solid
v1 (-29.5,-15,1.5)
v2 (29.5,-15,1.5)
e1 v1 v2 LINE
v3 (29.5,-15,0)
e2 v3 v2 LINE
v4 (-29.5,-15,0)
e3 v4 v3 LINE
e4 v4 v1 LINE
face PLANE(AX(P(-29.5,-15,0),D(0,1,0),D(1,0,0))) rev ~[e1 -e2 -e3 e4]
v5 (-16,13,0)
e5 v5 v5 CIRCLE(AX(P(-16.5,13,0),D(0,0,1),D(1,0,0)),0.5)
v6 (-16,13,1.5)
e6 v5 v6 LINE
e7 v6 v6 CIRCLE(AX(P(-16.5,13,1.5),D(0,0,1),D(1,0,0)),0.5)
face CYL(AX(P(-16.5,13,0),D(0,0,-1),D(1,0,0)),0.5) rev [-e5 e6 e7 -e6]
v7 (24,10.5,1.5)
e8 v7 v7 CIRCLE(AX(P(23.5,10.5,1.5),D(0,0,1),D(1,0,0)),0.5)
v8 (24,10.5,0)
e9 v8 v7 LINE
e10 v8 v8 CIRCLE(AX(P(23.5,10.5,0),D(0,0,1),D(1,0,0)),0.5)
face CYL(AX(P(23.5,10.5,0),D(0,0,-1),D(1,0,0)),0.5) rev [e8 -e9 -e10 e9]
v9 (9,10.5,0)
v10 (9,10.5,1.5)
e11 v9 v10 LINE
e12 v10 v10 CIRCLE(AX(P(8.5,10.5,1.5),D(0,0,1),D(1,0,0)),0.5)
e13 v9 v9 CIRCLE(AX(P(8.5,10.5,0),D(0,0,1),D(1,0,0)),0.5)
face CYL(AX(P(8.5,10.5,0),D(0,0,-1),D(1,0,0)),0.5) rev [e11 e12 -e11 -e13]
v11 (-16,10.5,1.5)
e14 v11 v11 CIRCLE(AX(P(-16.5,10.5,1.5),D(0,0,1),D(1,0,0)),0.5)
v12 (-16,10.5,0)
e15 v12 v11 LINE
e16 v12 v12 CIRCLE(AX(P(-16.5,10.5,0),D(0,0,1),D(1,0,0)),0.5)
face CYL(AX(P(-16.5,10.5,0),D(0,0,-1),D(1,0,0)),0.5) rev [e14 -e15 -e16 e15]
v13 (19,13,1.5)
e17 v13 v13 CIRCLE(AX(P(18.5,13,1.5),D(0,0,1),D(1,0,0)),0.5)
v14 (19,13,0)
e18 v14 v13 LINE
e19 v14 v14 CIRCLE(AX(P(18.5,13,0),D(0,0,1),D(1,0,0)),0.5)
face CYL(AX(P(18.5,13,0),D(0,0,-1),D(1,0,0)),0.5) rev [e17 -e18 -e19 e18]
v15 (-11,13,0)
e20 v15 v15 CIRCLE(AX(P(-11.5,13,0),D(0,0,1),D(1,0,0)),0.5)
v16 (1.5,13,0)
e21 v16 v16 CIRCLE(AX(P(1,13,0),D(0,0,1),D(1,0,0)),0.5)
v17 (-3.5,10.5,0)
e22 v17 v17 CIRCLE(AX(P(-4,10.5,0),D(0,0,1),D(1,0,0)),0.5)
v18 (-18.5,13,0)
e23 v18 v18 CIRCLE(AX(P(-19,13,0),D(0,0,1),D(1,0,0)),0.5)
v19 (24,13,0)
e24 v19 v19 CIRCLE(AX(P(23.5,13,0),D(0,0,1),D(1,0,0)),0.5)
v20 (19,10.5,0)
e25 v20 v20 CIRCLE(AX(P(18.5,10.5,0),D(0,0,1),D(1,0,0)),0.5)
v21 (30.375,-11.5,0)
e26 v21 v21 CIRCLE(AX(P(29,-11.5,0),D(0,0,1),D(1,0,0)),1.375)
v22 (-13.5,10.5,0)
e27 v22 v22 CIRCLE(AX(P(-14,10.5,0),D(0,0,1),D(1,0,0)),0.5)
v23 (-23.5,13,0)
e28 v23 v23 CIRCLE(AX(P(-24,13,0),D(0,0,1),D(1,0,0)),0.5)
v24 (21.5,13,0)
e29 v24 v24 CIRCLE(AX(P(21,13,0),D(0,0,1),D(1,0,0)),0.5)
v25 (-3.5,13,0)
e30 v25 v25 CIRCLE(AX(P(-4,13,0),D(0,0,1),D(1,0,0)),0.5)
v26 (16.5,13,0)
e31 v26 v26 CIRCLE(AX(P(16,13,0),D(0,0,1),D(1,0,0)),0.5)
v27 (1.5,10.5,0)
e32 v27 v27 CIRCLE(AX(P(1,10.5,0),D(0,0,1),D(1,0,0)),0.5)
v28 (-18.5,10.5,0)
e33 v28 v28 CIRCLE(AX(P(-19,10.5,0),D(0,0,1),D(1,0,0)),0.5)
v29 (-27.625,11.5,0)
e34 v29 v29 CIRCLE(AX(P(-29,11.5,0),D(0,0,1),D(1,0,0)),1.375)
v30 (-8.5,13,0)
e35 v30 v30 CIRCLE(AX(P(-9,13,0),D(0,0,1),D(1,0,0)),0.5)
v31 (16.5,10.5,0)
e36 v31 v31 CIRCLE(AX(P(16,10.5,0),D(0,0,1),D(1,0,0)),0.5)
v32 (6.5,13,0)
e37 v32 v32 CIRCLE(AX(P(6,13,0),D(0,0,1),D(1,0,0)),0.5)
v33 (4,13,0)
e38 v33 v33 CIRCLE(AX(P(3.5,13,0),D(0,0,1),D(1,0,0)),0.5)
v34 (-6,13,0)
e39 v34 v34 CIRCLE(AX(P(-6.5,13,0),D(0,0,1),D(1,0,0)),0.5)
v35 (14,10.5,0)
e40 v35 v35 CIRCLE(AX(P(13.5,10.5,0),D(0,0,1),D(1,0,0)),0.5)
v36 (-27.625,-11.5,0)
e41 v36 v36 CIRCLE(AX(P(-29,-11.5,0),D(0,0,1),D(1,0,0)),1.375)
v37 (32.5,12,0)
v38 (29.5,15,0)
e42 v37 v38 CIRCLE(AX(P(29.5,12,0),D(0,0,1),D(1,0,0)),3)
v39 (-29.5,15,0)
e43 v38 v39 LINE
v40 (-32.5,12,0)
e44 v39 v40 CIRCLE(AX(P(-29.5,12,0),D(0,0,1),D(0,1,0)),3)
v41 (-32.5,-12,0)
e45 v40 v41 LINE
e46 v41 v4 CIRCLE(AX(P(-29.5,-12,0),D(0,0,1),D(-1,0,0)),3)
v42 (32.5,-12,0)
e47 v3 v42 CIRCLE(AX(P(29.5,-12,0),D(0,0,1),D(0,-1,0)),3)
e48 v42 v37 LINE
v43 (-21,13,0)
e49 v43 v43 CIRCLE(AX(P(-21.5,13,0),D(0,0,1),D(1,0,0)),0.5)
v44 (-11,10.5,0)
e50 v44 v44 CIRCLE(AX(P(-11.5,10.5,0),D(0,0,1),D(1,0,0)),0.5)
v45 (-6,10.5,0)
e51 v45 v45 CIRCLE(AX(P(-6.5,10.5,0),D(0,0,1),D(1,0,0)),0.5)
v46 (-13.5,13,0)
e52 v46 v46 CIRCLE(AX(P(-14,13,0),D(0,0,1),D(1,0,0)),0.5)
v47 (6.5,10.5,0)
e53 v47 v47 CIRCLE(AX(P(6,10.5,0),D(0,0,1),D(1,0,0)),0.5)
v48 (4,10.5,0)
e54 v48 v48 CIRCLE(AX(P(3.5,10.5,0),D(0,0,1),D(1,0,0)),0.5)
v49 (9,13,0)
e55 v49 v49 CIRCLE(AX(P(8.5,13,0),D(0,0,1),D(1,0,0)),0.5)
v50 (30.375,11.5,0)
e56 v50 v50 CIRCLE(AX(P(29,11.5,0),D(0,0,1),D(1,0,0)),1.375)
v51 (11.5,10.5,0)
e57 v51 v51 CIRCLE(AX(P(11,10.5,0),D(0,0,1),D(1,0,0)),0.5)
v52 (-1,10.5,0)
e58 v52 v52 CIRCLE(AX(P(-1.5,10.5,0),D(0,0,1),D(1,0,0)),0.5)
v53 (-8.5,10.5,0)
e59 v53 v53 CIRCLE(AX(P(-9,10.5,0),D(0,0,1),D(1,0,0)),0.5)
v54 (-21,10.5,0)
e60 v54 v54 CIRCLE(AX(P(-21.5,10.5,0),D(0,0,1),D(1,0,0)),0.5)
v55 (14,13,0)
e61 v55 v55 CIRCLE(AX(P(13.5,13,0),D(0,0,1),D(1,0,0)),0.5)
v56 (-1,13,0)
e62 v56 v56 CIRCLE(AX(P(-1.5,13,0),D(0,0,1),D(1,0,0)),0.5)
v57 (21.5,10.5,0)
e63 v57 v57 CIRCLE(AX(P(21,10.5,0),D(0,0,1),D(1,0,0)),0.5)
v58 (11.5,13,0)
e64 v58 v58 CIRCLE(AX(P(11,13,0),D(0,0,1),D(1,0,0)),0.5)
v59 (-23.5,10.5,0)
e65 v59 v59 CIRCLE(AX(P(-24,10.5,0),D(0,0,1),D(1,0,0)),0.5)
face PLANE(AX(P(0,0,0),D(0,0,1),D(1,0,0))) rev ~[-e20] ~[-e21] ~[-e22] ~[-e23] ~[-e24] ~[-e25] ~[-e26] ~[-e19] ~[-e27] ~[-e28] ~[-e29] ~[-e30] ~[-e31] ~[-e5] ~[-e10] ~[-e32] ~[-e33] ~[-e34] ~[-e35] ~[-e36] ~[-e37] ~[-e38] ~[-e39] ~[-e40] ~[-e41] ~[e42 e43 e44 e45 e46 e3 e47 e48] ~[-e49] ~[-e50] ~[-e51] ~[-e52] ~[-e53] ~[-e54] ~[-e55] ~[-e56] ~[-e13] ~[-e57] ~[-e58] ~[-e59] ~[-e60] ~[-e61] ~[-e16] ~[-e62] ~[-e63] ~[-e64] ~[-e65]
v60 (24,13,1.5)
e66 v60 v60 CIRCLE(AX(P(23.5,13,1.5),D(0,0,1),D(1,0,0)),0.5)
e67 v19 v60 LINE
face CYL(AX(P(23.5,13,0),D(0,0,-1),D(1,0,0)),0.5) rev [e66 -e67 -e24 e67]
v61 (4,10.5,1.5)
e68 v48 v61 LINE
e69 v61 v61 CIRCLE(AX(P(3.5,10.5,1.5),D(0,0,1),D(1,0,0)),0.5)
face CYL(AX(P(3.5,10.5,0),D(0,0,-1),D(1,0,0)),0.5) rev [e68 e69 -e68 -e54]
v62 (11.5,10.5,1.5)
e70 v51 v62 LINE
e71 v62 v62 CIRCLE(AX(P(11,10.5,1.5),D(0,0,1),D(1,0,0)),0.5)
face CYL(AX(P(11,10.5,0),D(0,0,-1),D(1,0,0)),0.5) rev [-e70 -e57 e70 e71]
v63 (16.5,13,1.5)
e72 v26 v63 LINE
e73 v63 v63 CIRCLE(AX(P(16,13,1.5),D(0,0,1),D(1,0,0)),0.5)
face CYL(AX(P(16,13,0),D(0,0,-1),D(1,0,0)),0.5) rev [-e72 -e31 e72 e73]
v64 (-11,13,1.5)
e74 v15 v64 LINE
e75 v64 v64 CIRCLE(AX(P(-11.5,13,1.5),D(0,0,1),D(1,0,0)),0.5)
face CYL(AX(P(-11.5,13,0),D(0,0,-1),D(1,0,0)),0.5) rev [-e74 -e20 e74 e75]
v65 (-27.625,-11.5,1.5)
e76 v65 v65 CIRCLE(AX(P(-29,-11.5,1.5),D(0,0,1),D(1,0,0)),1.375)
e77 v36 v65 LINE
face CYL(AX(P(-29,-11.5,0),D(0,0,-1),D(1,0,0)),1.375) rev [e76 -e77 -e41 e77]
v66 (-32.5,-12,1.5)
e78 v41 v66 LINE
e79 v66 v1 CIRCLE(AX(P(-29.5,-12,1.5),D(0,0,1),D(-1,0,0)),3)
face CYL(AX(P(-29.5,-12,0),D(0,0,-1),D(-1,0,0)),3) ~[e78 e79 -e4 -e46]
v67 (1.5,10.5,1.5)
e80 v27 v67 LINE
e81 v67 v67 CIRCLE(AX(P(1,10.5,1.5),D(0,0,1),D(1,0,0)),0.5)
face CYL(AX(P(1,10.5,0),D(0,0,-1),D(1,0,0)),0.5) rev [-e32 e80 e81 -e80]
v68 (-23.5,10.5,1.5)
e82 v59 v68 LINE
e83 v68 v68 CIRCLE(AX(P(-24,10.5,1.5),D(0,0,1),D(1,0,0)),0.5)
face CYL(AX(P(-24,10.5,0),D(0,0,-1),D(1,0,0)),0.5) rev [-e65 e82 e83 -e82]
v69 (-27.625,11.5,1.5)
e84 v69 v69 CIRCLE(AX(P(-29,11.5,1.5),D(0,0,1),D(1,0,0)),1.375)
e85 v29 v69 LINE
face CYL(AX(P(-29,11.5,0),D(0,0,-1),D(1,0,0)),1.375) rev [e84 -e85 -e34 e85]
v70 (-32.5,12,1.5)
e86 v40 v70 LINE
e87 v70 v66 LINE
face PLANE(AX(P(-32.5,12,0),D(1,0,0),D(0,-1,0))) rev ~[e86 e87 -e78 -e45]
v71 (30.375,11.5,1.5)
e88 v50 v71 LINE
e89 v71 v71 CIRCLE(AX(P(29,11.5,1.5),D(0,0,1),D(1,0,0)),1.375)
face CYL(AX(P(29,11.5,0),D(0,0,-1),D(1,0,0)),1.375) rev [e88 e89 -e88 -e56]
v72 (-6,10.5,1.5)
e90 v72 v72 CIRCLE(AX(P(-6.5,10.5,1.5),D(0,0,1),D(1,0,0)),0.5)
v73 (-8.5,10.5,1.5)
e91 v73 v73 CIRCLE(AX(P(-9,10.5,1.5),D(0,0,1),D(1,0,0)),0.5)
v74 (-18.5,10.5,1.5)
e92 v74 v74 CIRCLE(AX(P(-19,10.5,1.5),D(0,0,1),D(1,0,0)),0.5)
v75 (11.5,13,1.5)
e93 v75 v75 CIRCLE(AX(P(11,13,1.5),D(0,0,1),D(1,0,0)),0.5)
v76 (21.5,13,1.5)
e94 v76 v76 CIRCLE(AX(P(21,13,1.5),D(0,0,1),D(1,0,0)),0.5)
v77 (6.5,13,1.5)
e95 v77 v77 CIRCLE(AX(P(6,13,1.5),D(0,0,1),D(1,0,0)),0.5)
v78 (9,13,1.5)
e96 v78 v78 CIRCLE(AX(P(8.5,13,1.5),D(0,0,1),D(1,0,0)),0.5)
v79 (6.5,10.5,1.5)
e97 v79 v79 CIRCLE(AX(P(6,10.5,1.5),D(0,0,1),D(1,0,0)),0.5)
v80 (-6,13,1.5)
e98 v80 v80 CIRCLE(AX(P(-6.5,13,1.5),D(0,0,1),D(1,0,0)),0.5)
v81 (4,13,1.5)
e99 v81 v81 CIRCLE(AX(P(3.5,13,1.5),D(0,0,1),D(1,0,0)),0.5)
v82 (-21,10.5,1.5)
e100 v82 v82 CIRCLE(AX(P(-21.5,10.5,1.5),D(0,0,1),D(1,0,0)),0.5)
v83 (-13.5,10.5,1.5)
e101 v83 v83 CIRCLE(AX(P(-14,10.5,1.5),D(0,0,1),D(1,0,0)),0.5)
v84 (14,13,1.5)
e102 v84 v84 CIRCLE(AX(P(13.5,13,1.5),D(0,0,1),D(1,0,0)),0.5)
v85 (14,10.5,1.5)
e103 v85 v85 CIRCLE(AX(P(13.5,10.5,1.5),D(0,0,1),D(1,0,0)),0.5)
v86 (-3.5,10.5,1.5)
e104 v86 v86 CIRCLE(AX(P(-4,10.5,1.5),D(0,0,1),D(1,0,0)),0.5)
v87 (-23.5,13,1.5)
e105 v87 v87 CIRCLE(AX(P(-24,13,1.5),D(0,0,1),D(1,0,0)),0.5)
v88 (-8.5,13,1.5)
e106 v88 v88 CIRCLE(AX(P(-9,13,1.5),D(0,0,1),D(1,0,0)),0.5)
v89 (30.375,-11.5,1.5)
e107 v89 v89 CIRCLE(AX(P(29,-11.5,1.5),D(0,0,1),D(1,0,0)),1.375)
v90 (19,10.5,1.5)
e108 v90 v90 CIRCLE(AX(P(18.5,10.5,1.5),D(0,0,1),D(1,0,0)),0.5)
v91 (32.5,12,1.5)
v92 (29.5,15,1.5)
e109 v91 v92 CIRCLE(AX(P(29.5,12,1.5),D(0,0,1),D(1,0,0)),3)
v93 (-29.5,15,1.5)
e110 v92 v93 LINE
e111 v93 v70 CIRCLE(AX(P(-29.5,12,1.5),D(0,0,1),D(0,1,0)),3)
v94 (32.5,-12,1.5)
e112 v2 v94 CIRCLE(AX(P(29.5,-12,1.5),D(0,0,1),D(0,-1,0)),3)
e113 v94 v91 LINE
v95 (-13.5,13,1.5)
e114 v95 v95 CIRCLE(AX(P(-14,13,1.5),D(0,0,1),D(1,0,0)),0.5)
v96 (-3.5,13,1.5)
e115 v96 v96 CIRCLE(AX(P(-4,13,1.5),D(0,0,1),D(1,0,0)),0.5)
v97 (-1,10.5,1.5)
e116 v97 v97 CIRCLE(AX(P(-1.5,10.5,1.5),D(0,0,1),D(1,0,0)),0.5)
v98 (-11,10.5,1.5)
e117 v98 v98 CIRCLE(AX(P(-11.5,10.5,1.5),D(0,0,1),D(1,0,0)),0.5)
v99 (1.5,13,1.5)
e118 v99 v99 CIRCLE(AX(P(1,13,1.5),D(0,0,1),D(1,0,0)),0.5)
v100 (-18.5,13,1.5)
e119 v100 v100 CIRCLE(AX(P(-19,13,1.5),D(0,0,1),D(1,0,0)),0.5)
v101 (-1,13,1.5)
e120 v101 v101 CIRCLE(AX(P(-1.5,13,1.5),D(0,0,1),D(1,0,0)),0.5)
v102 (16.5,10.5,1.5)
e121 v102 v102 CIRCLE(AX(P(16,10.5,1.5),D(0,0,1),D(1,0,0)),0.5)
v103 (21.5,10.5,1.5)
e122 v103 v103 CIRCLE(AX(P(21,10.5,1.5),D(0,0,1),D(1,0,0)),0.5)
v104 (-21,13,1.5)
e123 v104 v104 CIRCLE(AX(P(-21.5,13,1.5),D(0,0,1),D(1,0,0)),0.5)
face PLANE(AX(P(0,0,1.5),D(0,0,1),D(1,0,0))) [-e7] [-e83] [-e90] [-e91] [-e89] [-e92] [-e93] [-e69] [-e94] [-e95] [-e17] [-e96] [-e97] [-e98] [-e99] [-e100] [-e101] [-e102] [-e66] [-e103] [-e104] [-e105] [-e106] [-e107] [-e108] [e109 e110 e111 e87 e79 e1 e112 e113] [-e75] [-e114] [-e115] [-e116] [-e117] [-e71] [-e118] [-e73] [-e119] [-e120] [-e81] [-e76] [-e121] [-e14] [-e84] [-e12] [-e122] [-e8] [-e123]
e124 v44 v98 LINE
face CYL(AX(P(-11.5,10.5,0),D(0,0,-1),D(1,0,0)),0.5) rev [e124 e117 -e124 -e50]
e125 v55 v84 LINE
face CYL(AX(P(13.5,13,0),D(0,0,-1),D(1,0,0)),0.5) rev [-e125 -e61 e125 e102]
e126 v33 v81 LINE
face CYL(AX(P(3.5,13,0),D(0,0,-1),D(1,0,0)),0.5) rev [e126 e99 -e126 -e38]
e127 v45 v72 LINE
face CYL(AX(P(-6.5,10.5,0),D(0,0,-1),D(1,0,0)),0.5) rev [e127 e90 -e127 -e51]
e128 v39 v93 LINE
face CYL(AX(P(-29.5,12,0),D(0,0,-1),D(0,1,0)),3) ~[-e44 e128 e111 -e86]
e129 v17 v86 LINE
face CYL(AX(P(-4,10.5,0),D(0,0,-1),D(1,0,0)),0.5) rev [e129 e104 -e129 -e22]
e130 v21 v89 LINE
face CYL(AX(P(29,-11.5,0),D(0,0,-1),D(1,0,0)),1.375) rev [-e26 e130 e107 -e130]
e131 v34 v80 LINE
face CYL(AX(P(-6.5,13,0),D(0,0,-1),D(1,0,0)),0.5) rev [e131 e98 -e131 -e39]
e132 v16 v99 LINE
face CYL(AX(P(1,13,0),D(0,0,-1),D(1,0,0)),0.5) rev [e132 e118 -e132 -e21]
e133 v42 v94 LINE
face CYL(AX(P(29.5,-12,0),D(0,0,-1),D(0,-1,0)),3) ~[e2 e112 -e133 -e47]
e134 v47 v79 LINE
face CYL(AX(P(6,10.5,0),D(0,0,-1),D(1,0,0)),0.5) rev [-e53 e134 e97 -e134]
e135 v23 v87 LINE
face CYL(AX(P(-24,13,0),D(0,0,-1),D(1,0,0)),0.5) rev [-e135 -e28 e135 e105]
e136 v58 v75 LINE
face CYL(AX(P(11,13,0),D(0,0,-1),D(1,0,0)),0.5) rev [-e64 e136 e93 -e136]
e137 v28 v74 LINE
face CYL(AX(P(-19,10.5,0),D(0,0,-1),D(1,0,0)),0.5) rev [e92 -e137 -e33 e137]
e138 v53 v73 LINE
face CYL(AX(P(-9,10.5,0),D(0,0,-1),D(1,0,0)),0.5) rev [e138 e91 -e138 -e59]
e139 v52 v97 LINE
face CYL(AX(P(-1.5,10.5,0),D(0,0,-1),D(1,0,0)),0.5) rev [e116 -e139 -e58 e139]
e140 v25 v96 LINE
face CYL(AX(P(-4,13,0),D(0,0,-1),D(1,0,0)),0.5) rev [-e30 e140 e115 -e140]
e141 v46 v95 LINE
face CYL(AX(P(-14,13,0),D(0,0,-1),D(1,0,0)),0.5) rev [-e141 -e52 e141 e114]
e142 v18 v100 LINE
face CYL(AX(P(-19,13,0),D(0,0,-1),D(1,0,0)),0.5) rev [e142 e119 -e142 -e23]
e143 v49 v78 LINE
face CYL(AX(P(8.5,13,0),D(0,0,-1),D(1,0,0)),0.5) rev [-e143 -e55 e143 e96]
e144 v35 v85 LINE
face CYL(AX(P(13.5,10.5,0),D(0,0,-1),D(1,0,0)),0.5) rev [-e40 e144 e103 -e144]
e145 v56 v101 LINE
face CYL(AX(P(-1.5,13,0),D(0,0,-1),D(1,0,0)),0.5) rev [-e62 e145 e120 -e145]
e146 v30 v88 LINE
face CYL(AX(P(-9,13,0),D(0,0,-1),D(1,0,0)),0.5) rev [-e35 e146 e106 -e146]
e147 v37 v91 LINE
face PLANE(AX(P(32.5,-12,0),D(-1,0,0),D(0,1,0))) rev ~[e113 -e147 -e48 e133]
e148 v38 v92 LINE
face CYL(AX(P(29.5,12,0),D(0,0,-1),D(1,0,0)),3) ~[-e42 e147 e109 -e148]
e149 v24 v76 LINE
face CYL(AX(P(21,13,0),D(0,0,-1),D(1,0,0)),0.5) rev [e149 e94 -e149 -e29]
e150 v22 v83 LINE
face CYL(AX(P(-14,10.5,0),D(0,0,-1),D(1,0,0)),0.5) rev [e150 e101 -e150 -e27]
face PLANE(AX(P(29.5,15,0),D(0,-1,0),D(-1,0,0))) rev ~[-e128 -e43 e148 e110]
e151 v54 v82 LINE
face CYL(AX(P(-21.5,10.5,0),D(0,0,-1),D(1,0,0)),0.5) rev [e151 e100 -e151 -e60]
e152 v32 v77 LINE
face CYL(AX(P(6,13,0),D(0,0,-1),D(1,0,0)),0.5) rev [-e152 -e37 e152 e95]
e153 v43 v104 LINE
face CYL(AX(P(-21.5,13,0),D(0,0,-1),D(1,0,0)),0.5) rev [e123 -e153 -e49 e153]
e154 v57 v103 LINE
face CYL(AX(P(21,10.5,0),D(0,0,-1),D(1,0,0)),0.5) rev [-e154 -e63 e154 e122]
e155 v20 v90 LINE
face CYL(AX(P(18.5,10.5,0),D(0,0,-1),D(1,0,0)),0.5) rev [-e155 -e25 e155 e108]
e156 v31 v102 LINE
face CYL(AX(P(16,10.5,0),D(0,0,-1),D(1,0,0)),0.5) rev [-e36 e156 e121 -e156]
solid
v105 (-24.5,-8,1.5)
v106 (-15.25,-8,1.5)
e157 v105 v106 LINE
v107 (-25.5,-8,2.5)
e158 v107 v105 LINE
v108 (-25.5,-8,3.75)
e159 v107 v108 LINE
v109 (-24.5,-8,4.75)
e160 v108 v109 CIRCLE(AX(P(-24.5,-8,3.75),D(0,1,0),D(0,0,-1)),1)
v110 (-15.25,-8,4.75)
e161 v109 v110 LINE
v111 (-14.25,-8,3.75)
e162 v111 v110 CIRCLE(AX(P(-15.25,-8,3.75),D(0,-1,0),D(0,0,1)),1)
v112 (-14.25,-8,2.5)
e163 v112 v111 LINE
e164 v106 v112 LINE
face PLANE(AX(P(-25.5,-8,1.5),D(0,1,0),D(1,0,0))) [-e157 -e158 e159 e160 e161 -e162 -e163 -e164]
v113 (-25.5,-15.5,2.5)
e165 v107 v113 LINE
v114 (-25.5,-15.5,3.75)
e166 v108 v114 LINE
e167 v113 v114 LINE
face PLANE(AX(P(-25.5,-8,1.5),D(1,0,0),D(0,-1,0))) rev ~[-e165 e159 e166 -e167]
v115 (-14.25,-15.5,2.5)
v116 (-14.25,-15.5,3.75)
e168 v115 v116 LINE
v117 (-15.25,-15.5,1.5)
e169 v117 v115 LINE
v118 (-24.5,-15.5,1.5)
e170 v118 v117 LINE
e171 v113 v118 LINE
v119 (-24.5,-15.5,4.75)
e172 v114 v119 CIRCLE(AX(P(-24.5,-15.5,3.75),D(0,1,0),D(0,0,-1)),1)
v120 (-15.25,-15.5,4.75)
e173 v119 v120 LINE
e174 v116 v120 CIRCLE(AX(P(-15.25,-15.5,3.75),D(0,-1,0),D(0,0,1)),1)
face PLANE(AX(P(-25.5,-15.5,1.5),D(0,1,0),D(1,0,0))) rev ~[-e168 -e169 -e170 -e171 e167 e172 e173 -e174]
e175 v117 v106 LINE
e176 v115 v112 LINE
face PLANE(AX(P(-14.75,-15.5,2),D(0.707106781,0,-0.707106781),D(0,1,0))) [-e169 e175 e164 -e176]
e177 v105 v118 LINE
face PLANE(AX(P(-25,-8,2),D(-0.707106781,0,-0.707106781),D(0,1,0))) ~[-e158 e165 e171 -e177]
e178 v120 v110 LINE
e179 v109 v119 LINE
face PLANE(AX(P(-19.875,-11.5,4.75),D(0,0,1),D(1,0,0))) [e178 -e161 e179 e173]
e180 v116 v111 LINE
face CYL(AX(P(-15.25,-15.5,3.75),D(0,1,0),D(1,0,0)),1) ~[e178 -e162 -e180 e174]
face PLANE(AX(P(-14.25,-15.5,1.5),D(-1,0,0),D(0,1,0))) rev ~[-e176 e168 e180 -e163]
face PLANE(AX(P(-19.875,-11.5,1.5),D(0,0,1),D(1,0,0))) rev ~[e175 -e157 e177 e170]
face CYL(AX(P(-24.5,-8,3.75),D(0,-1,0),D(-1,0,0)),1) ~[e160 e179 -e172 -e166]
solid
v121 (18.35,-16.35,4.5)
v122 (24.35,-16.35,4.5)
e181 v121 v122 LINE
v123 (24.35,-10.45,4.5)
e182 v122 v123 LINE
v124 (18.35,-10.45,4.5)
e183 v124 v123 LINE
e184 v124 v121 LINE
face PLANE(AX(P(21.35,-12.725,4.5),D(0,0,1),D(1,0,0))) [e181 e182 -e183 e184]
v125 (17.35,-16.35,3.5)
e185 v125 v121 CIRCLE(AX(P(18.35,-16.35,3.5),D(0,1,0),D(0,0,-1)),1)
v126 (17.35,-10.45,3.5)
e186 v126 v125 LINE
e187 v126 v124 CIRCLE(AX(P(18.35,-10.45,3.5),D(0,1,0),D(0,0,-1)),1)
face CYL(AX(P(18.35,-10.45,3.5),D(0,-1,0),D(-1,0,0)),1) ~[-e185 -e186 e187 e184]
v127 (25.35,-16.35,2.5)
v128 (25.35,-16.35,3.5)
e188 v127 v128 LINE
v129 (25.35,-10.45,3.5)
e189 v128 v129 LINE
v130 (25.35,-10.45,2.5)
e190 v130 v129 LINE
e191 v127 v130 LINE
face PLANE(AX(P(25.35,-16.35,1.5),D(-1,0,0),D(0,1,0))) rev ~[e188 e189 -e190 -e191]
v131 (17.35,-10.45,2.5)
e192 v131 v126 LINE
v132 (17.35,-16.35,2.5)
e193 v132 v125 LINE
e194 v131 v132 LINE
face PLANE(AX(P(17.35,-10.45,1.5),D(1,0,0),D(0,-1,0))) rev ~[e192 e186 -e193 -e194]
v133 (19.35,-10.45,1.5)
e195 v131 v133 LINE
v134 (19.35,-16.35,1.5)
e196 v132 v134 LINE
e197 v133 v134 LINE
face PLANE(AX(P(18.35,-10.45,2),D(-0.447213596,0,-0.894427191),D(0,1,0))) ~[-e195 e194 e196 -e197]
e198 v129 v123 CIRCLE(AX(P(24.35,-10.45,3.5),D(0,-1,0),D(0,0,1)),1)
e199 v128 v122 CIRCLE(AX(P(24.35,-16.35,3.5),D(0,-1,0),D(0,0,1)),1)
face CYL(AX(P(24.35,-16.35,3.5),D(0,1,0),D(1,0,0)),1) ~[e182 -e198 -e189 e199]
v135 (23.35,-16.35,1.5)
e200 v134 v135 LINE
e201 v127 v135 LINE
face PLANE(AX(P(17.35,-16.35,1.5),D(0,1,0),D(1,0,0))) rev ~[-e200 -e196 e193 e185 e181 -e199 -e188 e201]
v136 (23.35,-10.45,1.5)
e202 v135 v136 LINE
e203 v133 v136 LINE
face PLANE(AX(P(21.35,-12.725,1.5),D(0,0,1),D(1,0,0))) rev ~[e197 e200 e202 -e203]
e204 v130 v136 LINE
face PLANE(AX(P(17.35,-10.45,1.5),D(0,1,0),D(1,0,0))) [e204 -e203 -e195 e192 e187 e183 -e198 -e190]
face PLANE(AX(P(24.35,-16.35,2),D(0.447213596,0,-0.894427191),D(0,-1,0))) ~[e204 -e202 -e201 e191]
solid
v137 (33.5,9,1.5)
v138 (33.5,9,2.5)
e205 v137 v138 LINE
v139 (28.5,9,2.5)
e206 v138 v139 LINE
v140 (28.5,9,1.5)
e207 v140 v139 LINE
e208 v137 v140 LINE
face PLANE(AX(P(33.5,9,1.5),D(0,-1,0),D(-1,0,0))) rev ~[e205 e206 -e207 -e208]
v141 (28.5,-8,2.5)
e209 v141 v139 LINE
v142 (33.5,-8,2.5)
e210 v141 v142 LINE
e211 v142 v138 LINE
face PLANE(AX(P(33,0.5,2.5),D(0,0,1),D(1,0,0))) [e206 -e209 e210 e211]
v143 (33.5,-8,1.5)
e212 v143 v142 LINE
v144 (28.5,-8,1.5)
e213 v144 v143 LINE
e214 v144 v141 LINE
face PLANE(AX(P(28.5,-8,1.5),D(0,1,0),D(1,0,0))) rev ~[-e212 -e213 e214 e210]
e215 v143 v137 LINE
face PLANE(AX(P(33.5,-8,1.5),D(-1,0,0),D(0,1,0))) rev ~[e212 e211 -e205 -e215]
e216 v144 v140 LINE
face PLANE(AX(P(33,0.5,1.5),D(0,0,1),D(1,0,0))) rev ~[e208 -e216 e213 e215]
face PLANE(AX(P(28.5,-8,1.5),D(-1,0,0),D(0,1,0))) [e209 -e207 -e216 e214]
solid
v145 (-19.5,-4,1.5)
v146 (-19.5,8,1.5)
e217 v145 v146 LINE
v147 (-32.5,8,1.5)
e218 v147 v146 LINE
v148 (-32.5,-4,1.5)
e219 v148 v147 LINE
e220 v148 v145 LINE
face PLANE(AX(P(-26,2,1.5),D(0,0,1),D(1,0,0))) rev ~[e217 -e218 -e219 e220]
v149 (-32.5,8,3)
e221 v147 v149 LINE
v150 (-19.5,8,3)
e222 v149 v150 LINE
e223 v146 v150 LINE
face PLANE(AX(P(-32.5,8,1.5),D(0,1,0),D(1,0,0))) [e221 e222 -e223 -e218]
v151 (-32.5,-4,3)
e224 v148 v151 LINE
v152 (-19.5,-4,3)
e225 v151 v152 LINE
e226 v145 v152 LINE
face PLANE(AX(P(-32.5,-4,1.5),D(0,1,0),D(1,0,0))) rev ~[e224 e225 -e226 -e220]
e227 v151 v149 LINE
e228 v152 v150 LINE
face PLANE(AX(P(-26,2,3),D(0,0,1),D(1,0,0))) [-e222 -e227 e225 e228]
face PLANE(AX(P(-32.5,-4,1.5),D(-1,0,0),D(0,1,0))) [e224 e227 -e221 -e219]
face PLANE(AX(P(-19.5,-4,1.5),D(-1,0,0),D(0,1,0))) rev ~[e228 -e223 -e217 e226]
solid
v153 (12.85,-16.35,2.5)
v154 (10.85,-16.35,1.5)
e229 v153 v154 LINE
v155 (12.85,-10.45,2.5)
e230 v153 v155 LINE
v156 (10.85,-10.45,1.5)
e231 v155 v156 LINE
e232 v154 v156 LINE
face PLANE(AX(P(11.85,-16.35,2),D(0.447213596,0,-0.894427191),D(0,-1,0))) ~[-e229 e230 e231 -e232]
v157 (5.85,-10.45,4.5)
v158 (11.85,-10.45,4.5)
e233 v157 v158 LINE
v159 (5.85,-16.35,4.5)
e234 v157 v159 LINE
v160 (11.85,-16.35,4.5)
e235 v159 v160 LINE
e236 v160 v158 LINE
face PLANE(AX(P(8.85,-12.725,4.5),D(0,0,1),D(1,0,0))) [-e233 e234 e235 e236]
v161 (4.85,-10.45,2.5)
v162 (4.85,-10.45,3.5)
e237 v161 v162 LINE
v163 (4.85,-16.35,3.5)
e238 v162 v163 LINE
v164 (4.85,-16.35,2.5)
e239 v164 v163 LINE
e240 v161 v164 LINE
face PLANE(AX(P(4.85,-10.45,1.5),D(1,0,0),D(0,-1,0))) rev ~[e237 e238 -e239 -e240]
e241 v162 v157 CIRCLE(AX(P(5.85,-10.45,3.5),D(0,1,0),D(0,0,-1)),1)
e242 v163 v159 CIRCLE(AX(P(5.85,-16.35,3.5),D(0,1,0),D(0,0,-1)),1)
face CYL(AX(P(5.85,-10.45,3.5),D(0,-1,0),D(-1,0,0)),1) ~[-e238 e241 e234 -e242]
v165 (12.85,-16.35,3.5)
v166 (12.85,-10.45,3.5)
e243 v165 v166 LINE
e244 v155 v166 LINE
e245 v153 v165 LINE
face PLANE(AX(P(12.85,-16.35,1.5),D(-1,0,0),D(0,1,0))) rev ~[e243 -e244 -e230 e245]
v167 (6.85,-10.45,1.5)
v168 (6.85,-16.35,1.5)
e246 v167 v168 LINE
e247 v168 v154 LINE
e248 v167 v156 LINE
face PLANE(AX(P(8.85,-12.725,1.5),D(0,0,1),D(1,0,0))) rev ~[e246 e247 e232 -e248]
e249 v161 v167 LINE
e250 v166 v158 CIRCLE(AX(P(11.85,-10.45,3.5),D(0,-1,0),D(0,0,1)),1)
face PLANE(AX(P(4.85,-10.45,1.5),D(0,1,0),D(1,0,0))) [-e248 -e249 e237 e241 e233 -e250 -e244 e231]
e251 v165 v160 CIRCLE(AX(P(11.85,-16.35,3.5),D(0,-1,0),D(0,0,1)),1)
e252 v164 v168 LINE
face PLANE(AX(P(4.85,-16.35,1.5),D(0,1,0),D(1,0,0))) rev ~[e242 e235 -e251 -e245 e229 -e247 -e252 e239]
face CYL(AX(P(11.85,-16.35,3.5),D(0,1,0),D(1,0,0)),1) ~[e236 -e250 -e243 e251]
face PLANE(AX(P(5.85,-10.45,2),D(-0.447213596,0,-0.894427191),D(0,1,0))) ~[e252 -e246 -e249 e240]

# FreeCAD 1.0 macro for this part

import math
import FreeCAD as App
import Part
import Sketcher

V = App.Vector
Q = App.Units.Quantity


def edges_at(feature, points):
    """Names of the edges that pass closest to the given points."""
    edges = feature.Shape.Edges
    near = lambda p: min(range(len(edges)), key=lambda i: edges[i].distToShape(Part.Vertex(*p))[0])
    return sorted({f"Edge{near(p) + 1}" for p in points})


def add_polygon(sketch, points):
    """Adds a closed chain of lines whose ends are joined by coincident constraints."""
    first, n = sketch.GeometryCount, len(points)
    for a, b in zip(points, points[1:] + points[:1]):
        sketch.addGeometry(Part.LineSegment(App.Vector(*a, 0), App.Vector(*b, 0)), False)
    for i in range(n):
        sketch.addConstraint(Sketcher.Constraint("Coincident", first + i, 2, first + (i + 1) % n, 1))

doc = App.newDocument("Part")
params = doc.addObject("Spreadsheet::Sheet", "Params")
for row, (alias, value) in enumerate([
    ("sketch1_diameter", "1 mm"),
    ("sketch1_radius", "3 mm"),
    ("sketch1_diameter2", "2.75 mm"),
    ("sketch1_width", "59 mm"),
    ("sketch1_height", "24 mm"),
    ("pad1_length", "1.5 mm"),
    ("sketch2_width", "13 mm"),
    ("sketch2_height", "12 mm"),
    ("pad2_length", "1.5 mm"),
    ("sketch3_width", "5 mm"),
    ("sketch3_height", "17 mm"),
    ("pad3_length", "1 mm"),
    ("sketch4_width", "8 mm"),
    ("sketch4_height", "5.9 mm"),
    ("pad4_length", "3 mm"),
    ("fillet_radius", "1 mm"),
    ("chamfer_size", "1 mm"),
    ("chamfer_size2", "2 mm"),
    ("chamfer2_size", "1 mm"),
    ("chamfer2_size2", "2 mm"),
    ("sketch5_width", "8 mm"),
    ("sketch5_height", "5.9 mm"),
    ("pad5_length", "3 mm"),
    ("fillet2_radius", "1 mm"),
    ("chamfer3_size", "1 mm"),
    ("chamfer3_size2", "2 mm"),
    ("chamfer4_size", "1 mm"),
    ("chamfer4_size2", "2 mm"),
    ("sketch6_height", "7.5 mm"),
    ("sketch6_width", "11.25 mm"),
    ("pad6_length", "3.25 mm"),
    ("fillet3_radius", "1 mm"),
    ("chamfer5_size", "1 mm"),
], start=1):
    params.set(f"A{row}", alias)
    params.set(f"B{row}", "=" + value)
    params.setAlias(f"B{row}", alias)

body = doc.addObject("PartDesign::Body", "Body")

sketch1 = body.newObject("Sketcher::SketchObject", "Sketch")
sketch1.AttachmentSupport = (doc.getObject("XY_Plane"), [""])
sketch1.MapMode = "FlatFace"
sketch1.addGeometry([
    Part.LineSegment(V(-29.5, -15, 0), V(29.5, -15, 0)),
    Part.ArcOfCircle(Part.Circle(V(29.5, -12, 0), V(0, 0, 1), 3), math.radians(-90), math.radians(0)),
    Part.LineSegment(V(32.5, -12, 0), V(32.5, 12, 0)),
    Part.ArcOfCircle(Part.Circle(V(29.5, 12, 0), V(0, 0, 1), 3), math.radians(0), math.radians(90)),
    Part.LineSegment(V(29.5, 15, 0), V(-29.5, 15, 0)),
    Part.ArcOfCircle(Part.Circle(V(-29.5, 12, 0), V(0, 0, 1), 3), math.radians(90), math.radians(180)),
    Part.LineSegment(V(-32.5, 12, 0), V(-32.5, -12, 0)),
    Part.ArcOfCircle(Part.Circle(V(-29.5, -12, 0), V(0, 0, 1), 3), math.radians(180), math.radians(270)),
    Part.Circle(V(-29, -11.5, 0), V(0, 0, 1), 1.4),
    Part.Circle(V(29, -11.5, 0), V(0, 0, 1), 1.4),
    Part.Circle(V(-29, 11.5, 0), V(0, 0, 1), 1.4),
    Part.Circle(V(-24, 10.5, 0), V(0, 0, 1), 0.5),
    Part.Circle(V(-24, 13, 0), V(0, 0, 1), 0.5),
    Part.Circle(V(-21.5, 10.5, 0), V(0, 0, 1), 0.5),
    Part.Circle(V(-19, 10.5, 0), V(0, 0, 1), 0.5),
    Part.Circle(V(-16.5, 10.5, 0), V(0, 0, 1), 0.5),
    Part.Circle(V(-21.5, 13, 0), V(0, 0, 1), 0.5),
    Part.Circle(V(-19, 13, 0), V(0, 0, 1), 0.5),
    Part.Circle(V(-16.5, 13, 0), V(0, 0, 1), 0.5),
    Part.Circle(V(-14, 10.5, 0), V(0, 0, 1), 0.5),
    Part.Circle(V(-11.5, 10.5, 0), V(0, 0, 1), 0.5),
    Part.Circle(V(-9, 10.5, 0), V(0, 0, 1), 0.5),
    Part.Circle(V(-14, 13, 0), V(0, 0, 1), 0.5),
    Part.Circle(V(-11.5, 13, 0), V(0, 0, 1), 0.5),
    Part.Circle(V(-9, 13, 0), V(0, 0, 1), 0.5),
    Part.Circle(V(-6.5, 10.5, 0), V(0, 0, 1), 0.5),
    Part.Circle(V(-4, 10.5, 0), V(0, 0, 1), 0.5),
    Part.Circle(V(-1.5, 10.5, 0), V(0, 0, 1), 0.5),
    Part.Circle(V(-6.5, 13, 0), V(0, 0, 1), 0.5),
    Part.Circle(V(-4, 13, 0), V(0, 0, 1), 0.5),
    Part.Circle(V(-1.5, 13, 0), V(0, 0, 1), 0.5),
    Part.Circle(V(1, 10.5, 0), V(0, 0, 1), 0.5),
    Part.Circle(V(3.5, 10.5, 0), V(0, 0, 1), 0.5),
    Part.Circle(V(6, 10.5, 0), V(0, 0, 1), 0.5),
    Part.Circle(V(1, 13, 0), V(0, 0, 1), 0.5),
    Part.Circle(V(3.5, 13, 0), V(0, 0, 1), 0.5),
    Part.Circle(V(6, 13, 0), V(0, 0, 1), 0.5),
    Part.Circle(V(8.5, 10.5, 0), V(0, 0, 1), 0.5),
    Part.Circle(V(11, 10.5, 0), V(0, 0, 1), 0.5),
    Part.Circle(V(13.5, 10.5, 0), V(0, 0, 1), 0.5),
    Part.Circle(V(8.5, 13, 0), V(0, 0, 1), 0.5),
    Part.Circle(V(11, 13, 0), V(0, 0, 1), 0.5),
    Part.Circle(V(13.5, 13, 0), V(0, 0, 1), 0.5),
    Part.Circle(V(16, 10.5, 0), V(0, 0, 1), 0.5),
    Part.Circle(V(18.5, 10.5, 0), V(0, 0, 1), 0.5),
    Part.Circle(V(21, 10.5, 0), V(0, 0, 1), 0.5),
    Part.Circle(V(16, 13, 0), V(0, 0, 1), 0.5),
    Part.Circle(V(18.5, 13, 0), V(0, 0, 1), 0.5),
    Part.Circle(V(21, 13, 0), V(0, 0, 1), 0.5),
    Part.Circle(V(23.5, 10.5, 0), V(0, 0, 1), 0.5),
    Part.Circle(V(29, 11.5, 0), V(0, 0, 1), 1.4),
    Part.Circle(V(23.5, 13, 0), V(0, 0, 1), 0.5),
], False)
sketch1.addConstraint([
    Sketcher.Constraint("Tangent", 0, 2, 1, 1),
    Sketcher.Constraint("Tangent", 1, 2, 2, 1),
    Sketcher.Constraint("Tangent", 2, 2, 3, 1),
    Sketcher.Constraint("Tangent", 3, 2, 4, 1),
    Sketcher.Constraint("Tangent", 4, 2, 5, 1),
    Sketcher.Constraint("Tangent", 5, 2, 6, 1),
    Sketcher.Constraint("Tangent", 6, 2, 7, 1),
    Sketcher.Constraint("Tangent", 7, 2, 0, 1),
    Sketcher.Constraint("Horizontal", 0),
    Sketcher.Constraint("Vertical", 2),
    Sketcher.Constraint("Horizontal", 4),
    Sketcher.Constraint("Vertical", 6),
    Sketcher.Constraint("Equal", 1, 3),
    Sketcher.Constraint("Equal", 3, 5),
    Sketcher.Constraint("Equal", 5, 7),
    Sketcher.Constraint("Equal", 8, 9),
    Sketcher.Constraint("Equal", 9, 10),
    Sketcher.Constraint("Equal", 11, 12),
    Sketcher.Constraint("Equal", 12, 13),
    Sketcher.Constraint("Equal", 13, 14),
    Sketcher.Constraint("Equal", 14, 15),
    Sketcher.Constraint("Equal", 15, 16),
    Sketcher.Constraint("Equal", 16, 17),
    Sketcher.Constraint("Equal", 17, 18),
    Sketcher.Constraint("Equal", 18, 19),
    Sketcher.Constraint("Equal", 19, 20),
    Sketcher.Constraint("Equal", 20, 21),
    Sketcher.Constraint("Equal", 21, 22),
    Sketcher.Constraint("Equal", 22, 23),
    Sketcher.Constraint("Equal", 23, 24),
    Sketcher.Constraint("Equal", 24, 25),
    Sketcher.Constraint("Equal", 25, 26),
    Sketcher.Constraint("Equal", 26, 27),
    Sketcher.Constraint("Equal", 27, 28),
    Sketcher.Constraint("Equal", 28, 29),
    Sketcher.Constraint("Equal", 29, 30),
    Sketcher.Constraint("Equal", 30, 31),
    Sketcher.Constraint("Equal", 31, 32),
    Sketcher.Constraint("Equal", 32, 33),
    Sketcher.Constraint("Equal", 33, 34),
    Sketcher.Constraint("Equal", 34, 35),
    Sketcher.Constraint("Equal", 35, 36),
    Sketcher.Constraint("Equal", 36, 37),
    Sketcher.Constraint("Equal", 37, 38),
    Sketcher.Constraint("Equal", 38, 39),
    Sketcher.Constraint("Equal", 39, 40),
    Sketcher.Constraint("Equal", 40, 41),
    Sketcher.Constraint("Equal", 41, 42),
    Sketcher.Constraint("Equal", 42, 43),
    Sketcher.Constraint("Equal", 43, 44),
    Sketcher.Constraint("Equal", 44, 45),
    Sketcher.Constraint("Equal", 45, 46),
    Sketcher.Constraint("Equal", 46, 47),
    Sketcher.Constraint("Equal", 47, 48),
    Sketcher.Constraint("Equal", 48, 49),
    Sketcher.Constraint("Equal", 10, 50),
    Sketcher.Constraint("Equal", 49, 51),
    Sketcher.Constraint("Symmetric", 1, 3, 5, 3, -1, 1),
    Sketcher.Constraint("Symmetric", 9, 3, 10, 3, -1, 1),
    Sketcher.Constraint("Symmetric", 8, 3, 50, 3, -1, 1),
    Sketcher.Constraint("Symmetric", 8, 3, 9, 3, -2),
    Sketcher.Constraint("Horizontal", 11, 3, 13, 3),
    Sketcher.Constraint("Horizontal", 13, 3, 14, 3),
    Sketcher.Constraint("Horizontal", 14, 3, 15, 3),
    Sketcher.Constraint("Horizontal", 12, 3, 16, 3),
    Sketcher.Constraint("Horizontal", 16, 3, 17, 3),
    Sketcher.Constraint("Horizontal", 17, 3, 18, 3),
    Sketcher.Constraint("Horizontal", 15, 3, 19, 3),
    Sketcher.Constraint("Horizontal", 19, 3, 20, 3),
    Sketcher.Constraint("Horizontal", 20, 3, 21, 3),
    Sketcher.Constraint("Horizontal", 18, 3, 22, 3),
    Sketcher.Constraint("Horizontal", 22, 3, 23, 3),
    Sketcher.Constraint("Horizontal", 23, 3, 24, 3),
    Sketcher.Constraint("Horizontal", 21, 3, 25, 3),
    Sketcher.Constraint("Horizontal", 25, 3, 26, 3),
    Sketcher.Constraint("Horizontal", 26, 3, 27, 3),
    Sketcher.Constraint("Horizontal", 24, 3, 28, 3),
    Sketcher.Constraint("Horizontal", 28, 3, 29, 3),
    Sketcher.Constraint("Horizontal", 29, 3, 30, 3),
    Sketcher.Constraint("Horizontal", 27, 3, 31, 3),
    Sketcher.Constraint("Horizontal", 31, 3, 32, 3),
    Sketcher.Constraint("Horizontal", 32, 3, 33, 3),
    Sketcher.Constraint("Horizontal", 30, 3, 34, 3),
    Sketcher.Constraint("Horizontal", 34, 3, 35, 3),
    Sketcher.Constraint("Horizontal", 35, 3, 36, 3),
    Sketcher.Constraint("Horizontal", 33, 3, 37, 3),
    Sketcher.Constraint("Horizontal", 37, 3, 38, 3),
    Sketcher.Constraint("Horizontal", 38, 3, 39, 3),
    Sketcher.Constraint("Horizontal", 36, 3, 40, 3),
    Sketcher.Constraint("Horizontal", 40, 3, 41, 3),
    Sketcher.Constraint("Horizontal", 41, 3, 42, 3),
    Sketcher.Constraint("Horizontal", 39, 3, 43, 3),
    Sketcher.Constraint("Horizontal", 43, 3, 44, 3),
    Sketcher.Constraint("Horizontal", 44, 3, 45, 3),
    Sketcher.Constraint("Horizontal", 42, 3, 46, 3),
    Sketcher.Constraint("Horizontal", 46, 3, 47, 3),
    Sketcher.Constraint("Horizontal", 47, 3, 48, 3),
    Sketcher.Constraint("Horizontal", 45, 3, 49, 3),
    Sketcher.Constraint("Horizontal", 48, 3, 51, 3),
    Sketcher.Constraint("Vertical", 11, 3, 12, 3),
    Sketcher.Constraint("Vertical", 13, 3, 16, 3),
    Sketcher.Constraint("Vertical", 14, 3, 17, 3),
    Sketcher.Constraint("Vertical", 15, 3, 18, 3),
    Sketcher.Constraint("Vertical", 19, 3, 22, 3),
    Sketcher.Constraint("Vertical", 20, 3, 23, 3),
    Sketcher.Constraint("Vertical", 21, 3, 24, 3),
    Sketcher.Constraint("Vertical", 25, 3, 28, 3),
    Sketcher.Constraint("Vertical", 26, 3, 29, 3),
    Sketcher.Constraint("Vertical", 27, 3, 30, 3),
    Sketcher.Constraint("Vertical", 31, 3, 34, 3),
    Sketcher.Constraint("Vertical", 32, 3, 35, 3),
    Sketcher.Constraint("Vertical", 33, 3, 36, 3),
    Sketcher.Constraint("Vertical", 37, 3, 40, 3),
    Sketcher.Constraint("Vertical", 38, 3, 41, 3),
    Sketcher.Constraint("Vertical", 39, 3, 42, 3),
    Sketcher.Constraint("Vertical", 43, 3, 46, 3),
    Sketcher.Constraint("Vertical", 44, 3, 47, 3),
    Sketcher.Constraint("Vertical", 45, 3, 48, 3),
    Sketcher.Constraint("Vertical", 49, 3, 51, 3),
    Sketcher.Constraint("Diameter", 11, Q("1 mm")),
    Sketcher.Constraint("Radius", 1, Q("3 mm")),
    Sketcher.Constraint("Diameter", 8, Q("2.75 mm")),
    Sketcher.Constraint("DistanceX", 0, 1, 0, 2, Q("59 mm")),
    Sketcher.Constraint("DistanceY", 2, 1, 2, 2, Q("24 mm")),
    Sketcher.Constraint("DistanceX", 8, 3, -1, 1, Q("29 mm")),
    Sketcher.Constraint("DistanceX", 11, 3, -1, 1, Q("24 mm")),
    Sketcher.Constraint("DistanceY", -1, 1, 12, 3, Q("13 mm")),
    Sketcher.Constraint("DistanceX", 14, 3, -1, 1, Q("19 mm")),
    Sketcher.Constraint("DistanceX", 19, 3, -1, 1, Q("14 mm")),
    Sketcher.Constraint("DistanceX", 21, 3, -1, 1, Q("9 mm")),
    Sketcher.Constraint("DistanceX", 26, 3, -1, 1, Q("4 mm")),
    Sketcher.Constraint("DistanceX", -1, 1, 31, 3, Q("1 mm")),
    Sketcher.Constraint("DistanceX", -1, 1, 33, 3, Q("6 mm")),
    Sketcher.Constraint("DistanceX", -1, 1, 38, 3, Q("11 mm")),
    Sketcher.Constraint("DistanceX", -1, 1, 43, 3, Q("16 mm")),
    Sketcher.Constraint("DistanceX", -1, 1, 45, 3, Q("21 mm")),
    Sketcher.Constraint("DistanceY", 8, 3, 10, 3, Q("23 mm")),
    Sketcher.Constraint("DistanceY", 11, 3, 10, 3, Q("1 mm")),
    Sketcher.Constraint("DistanceX", 5, 3, 13, 3, Q("8 mm")),
    Sketcher.Constraint("DistanceX", 13, 3, 15, 3, Q("5 mm")),
    Sketcher.Constraint("DistanceX", 15, 3, 20, 3, Q("5 mm")),
    Sketcher.Constraint("DistanceX", 20, 3, 25, 3, Q("5 mm")),
    Sketcher.Constraint("DistanceX", 25, 3, 27, 3, Q("5 mm")),
    Sketcher.Constraint("DistanceX", 27, 3, 32, 3, Q("5 mm")),
    Sketcher.Constraint("DistanceX", 32, 3, 37, 3, Q("5 mm")),
    Sketcher.Constraint("DistanceX", 37, 3, 39, 3, Q("5 mm")),
    Sketcher.Constraint("DistanceX", 39, 3, 44, 3, Q("5 mm")),
    Sketcher.Constraint("DistanceX", 44, 3, 49, 3, Q("5 mm")),
])
sketch1.setExpression("Constraints[119]", "Params.sketch1_diameter")
sketch1.setExpression("Constraints[120]", "Params.sketch1_radius")
sketch1.setExpression("Constraints[121]", "Params.sketch1_diameter2")
sketch1.setExpression("Constraints[122]", "Params.sketch1_width")
sketch1.setExpression("Constraints[123]", "Params.sketch1_height")
pad1 = body.newObject("PartDesign::Pad", "Pad")
pad1.Profile = sketch1
pad1.setExpression("Length", "Params.pad1_length")
body2 = doc.addObject("PartDesign::Body", "Body001")

sketch2 = body2.newObject("Sketcher::SketchObject", "Sketch001")
sketch2.AttachmentSupport = (doc.getObject("XY_Plane001"), [""])
sketch2.MapMode = "FlatFace"
sketch2.AttachmentOffset = App.Placement(V(0, 0, 1.5), App.Rotation())
add_polygon(sketch2, [(-32, 8), (-32, -4), (-20, -4), (-20, 8)])
sketch2.addConstraint([
    Sketcher.Constraint("Vertical", 0),
    Sketcher.Constraint("Horizontal", 1),
    Sketcher.Constraint("Vertical", 2),
    Sketcher.Constraint("Horizontal", 3),
    Sketcher.Constraint("DistanceX", 1, 1, 1, 2, Q("13 mm")),
    Sketcher.Constraint("DistanceY", 0, 2, 0, 1, Q("12 mm")),
    Sketcher.Constraint("DistanceY", 0, 2, -1, 1, Q("4 mm")),
    Sketcher.Constraint("DistanceX", 0, 2, -1, 1, Q("32.5 mm")),
])
sketch2.setExpression("Constraints[8]", "Params.sketch2_width")
sketch2.setExpression("Constraints[9]", "Params.sketch2_height")
pad2 = body2.newObject("PartDesign::Pad", "Pad001")
pad2.Profile = sketch2
pad2.setExpression("Length", "Params.pad2_length")
body3 = doc.addObject("PartDesign::Body", "Body002")

sketch3 = body3.newObject("Sketcher::SketchObject", "Sketch002")
sketch3.AttachmentSupport = (doc.getObject("XY_Plane002"), [""])
sketch3.MapMode = "FlatFace"
sketch3.AttachmentOffset = App.Placement(V(0, 0, 1.5), App.Rotation())
add_polygon(sketch3, [(34, -8), (34, 9), (28, 9), (28, -8)])
sketch3.addConstraint([
    Sketcher.Constraint("Vertical", 0),
    Sketcher.Constraint("Horizontal", 1),
    Sketcher.Constraint("Vertical", 2),
    Sketcher.Constraint("Horizontal", 3),
    Sketcher.Constraint("DistanceX", 1, 2, 1, 1, Q("5 mm")),
    Sketcher.Constraint("DistanceY", 0, 1, 0, 2, Q("17 mm")),
    Sketcher.Constraint("DistanceY", -1, 1, 0, 2, Q("9 mm")),
    Sketcher.Constraint("DistanceX", -1, 1, 0, 2, Q("33.5 mm")),
])
sketch3.setExpression("Constraints[8]", "Params.sketch3_width")
sketch3.setExpression("Constraints[9]", "Params.sketch3_height")
pad3 = body3.newObject("PartDesign::Pad", "Pad002")
pad3.Profile = sketch3
pad3.setExpression("Length", "Params.pad3_length")
body4 = doc.addObject("PartDesign::Body", "Body003")

sketch4 = body4.newObject("Sketcher::SketchObject", "Sketch003")
sketch4.AttachmentSupport = (doc.getObject("XY_Plane003"), [""])
sketch4.MapMode = "FlatFace"
sketch4.AttachmentOffset = App.Placement(V(0, 0, 1.5), App.Rotation())
add_polygon(sketch4, [(5, -10), (5, -16), (13, -16), (13, -10)])
sketch4.addConstraint([
    Sketcher.Constraint("Vertical", 0),
    Sketcher.Constraint("Horizontal", 1),
    Sketcher.Constraint("Vertical", 2),
    Sketcher.Constraint("Horizontal", 3),
    Sketcher.Constraint("DistanceX", 1, 1, 1, 2, Q("8 mm")),
    Sketcher.Constraint("DistanceY", 0, 2, 0, 1, Q("5.9 mm")),
    Sketcher.Constraint("DistanceX", -1, 1, 0, 2, Q("4.85 mm")),
    Sketcher.Constraint("DistanceY", 0, 2, -1, 1, Q("16.35 mm")),
])
sketch4.setExpression("Constraints[8]", "Params.sketch4_width")
sketch4.setExpression("Constraints[9]", "Params.sketch4_height")
pad4 = body4.newObject("PartDesign::Pad", "Pad003")
pad4.Profile = sketch4
pad4.setExpression("Length", "Params.pad4_length")
doc.recompute()

fillet = body4.newObject("PartDesign::Fillet", "Fillet")
fillet.Base = (pad4, edges_at(pad4, [(12.85, -13.4, 4.5), (4.85, -13.4, 4.5)]))
fillet.setExpression("Radius", "Params.fillet_radius")
doc.recompute()

chamfer = body4.newObject("PartDesign::Chamfer", "Chamfer")
chamfer.Base = (fillet, edges_at(fillet, [(12.85, -13.4, 1.5)]))
chamfer.ChamferType = "Two distances"
chamfer.setExpression("Size", "Params.chamfer_size")
chamfer.setExpression("Size2", "Params.chamfer_size2")
chamfer.FlipDirection = True
doc.recompute()

chamfer2 = body4.newObject("PartDesign::Chamfer", "Chamfer001")
chamfer2.Base = (chamfer, edges_at(chamfer, [(4.85, -13.4, 1.5)]))
chamfer2.ChamferType = "Two distances"
chamfer2.setExpression("Size", "Params.chamfer2_size")
chamfer2.setExpression("Size2", "Params.chamfer2_size2")
chamfer2.FlipDirection = True
body5 = doc.addObject("PartDesign::Body", "Body004")

sketch5 = body5.newObject("Sketcher::SketchObject", "Sketch004")
sketch5.AttachmentSupport = (doc.getObject("XY_Plane004"), [""])
sketch5.MapMode = "FlatFace"
sketch5.AttachmentOffset = App.Placement(V(0, 0, 1.5), App.Rotation())
add_polygon(sketch5, [(17, -10), (17, -16), (25, -16), (25, -10)])
sketch5.addConstraint([
    Sketcher.Constraint("Vertical", 0),
    Sketcher.Constraint("Horizontal", 1),
    Sketcher.Constraint("Vertical", 2),
    Sketcher.Constraint("Horizontal", 3),
    Sketcher.Constraint("DistanceX", 1, 1, 1, 2, Q("8 mm")),
    Sketcher.Constraint("DistanceY", 0, 2, 0, 1, Q("5.9 mm")),
    Sketcher.Constraint("DistanceX", -1, 1, 0, 2, Q("17.35 mm")),
    Sketcher.Constraint("DistanceY", 0, 2, -1, 1, Q("16.35 mm")),
])
sketch5.setExpression("Constraints[8]", "Params.sketch5_width")
sketch5.setExpression("Constraints[9]", "Params.sketch5_height")
pad5 = body5.newObject("PartDesign::Pad", "Pad004")
pad5.Profile = sketch5
pad5.setExpression("Length", "Params.pad5_length")
doc.recompute()

fillet2 = body5.newObject("PartDesign::Fillet", "Fillet001")
fillet2.Base = (pad5, edges_at(pad5, [(25.35, -13.4, 4.5), (17.35, -13.4, 4.5)]))
fillet2.setExpression("Radius", "Params.fillet2_radius")
doc.recompute()

chamfer3 = body5.newObject("PartDesign::Chamfer", "Chamfer002")
chamfer3.Base = (fillet2, edges_at(fillet2, [(25.35, -13.4, 1.5)]))
chamfer3.ChamferType = "Two distances"
chamfer3.setExpression("Size", "Params.chamfer3_size")
chamfer3.setExpression("Size2", "Params.chamfer3_size2")
chamfer3.FlipDirection = True
doc.recompute()

chamfer4 = body5.newObject("PartDesign::Chamfer", "Chamfer003")
chamfer4.Base = (chamfer3, edges_at(chamfer3, [(17.35, -13.4, 1.5)]))
chamfer4.ChamferType = "Two distances"
chamfer4.setExpression("Size", "Params.chamfer4_size")
chamfer4.setExpression("Size2", "Params.chamfer4_size2")
chamfer4.FlipDirection = True
body6 = doc.addObject("PartDesign::Body", "Body005")

sketch6 = body6.newObject("Sketcher::SketchObject", "Sketch005")
sketch6.AttachmentSupport = (doc.getObject("XY_Plane005"), [""])
sketch6.MapMode = "FlatFace"
sketch6.AttachmentOffset = App.Placement(V(0, 0, 1.5), App.Rotation())
add_polygon(sketch6, [(-26, -8), (-26, -16), (-14, -16), (-14, -8)])
sketch6.addConstraint([
    Sketcher.Constraint("Vertical", 0),
    Sketcher.Constraint("Horizontal", 1),
    Sketcher.Constraint("Vertical", 2),
    Sketcher.Constraint("Horizontal", 3),
    Sketcher.Constraint("DistanceY", 0, 2, 0, 1, Q("7.5 mm")),
    Sketcher.Constraint("DistanceY", 2, 2, -1, 1, Q("8 mm")),
    Sketcher.Constraint("DistanceX", 1, 1, 1, 2, Q("11.25 mm")),
    Sketcher.Constraint("DistanceX", 0, 2, -1, 1, Q("25.5 mm")),
])
sketch6.setExpression("Constraints[8]", "Params.sketch6_height")
sketch6.setExpression("Constraints[10]", "Params.sketch6_width")
pad6 = body6.newObject("PartDesign::Pad", "Pad005")
pad6.Profile = sketch6
pad6.setExpression("Length", "Params.pad6_length")
doc.recompute()

fillet3 = body6.newObject("PartDesign::Fillet", "Fillet002")
fillet3.Base = (pad6, edges_at(pad6, [(-25.5, -11.75, 4.75), (-14.25, -11.75, 4.75)]))
fillet3.setExpression("Radius", "Params.fillet3_radius")
doc.recompute()

chamfer5 = body6.newObject("PartDesign::Chamfer", "Chamfer004")
chamfer5.Base = (fillet3, edges_at(fillet3, [(-25.5, -11.75, 1.5), (-14.25, -11.75, 1.5)]))
chamfer5.setExpression("Size", "Params.chamfer5_size")

doc.recompute()
